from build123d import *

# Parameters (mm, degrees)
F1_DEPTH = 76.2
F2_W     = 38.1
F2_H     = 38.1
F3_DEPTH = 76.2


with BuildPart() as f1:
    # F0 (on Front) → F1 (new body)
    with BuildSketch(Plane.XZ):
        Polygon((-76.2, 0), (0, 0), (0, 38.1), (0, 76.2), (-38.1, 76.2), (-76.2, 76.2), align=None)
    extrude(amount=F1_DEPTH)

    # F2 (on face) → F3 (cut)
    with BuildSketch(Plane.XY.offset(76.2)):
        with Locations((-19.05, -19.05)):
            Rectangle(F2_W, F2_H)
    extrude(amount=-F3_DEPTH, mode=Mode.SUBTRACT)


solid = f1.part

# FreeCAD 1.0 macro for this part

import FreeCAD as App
import Part
import Sketcher

V = App.Vector
Q = App.Units.Quantity

doc = App.newDocument("Part")
body = doc.addObject("PartDesign::Body", "Body")

# Sketch on XZ plane
sketch1 = body.newObject("Sketcher::SketchObject", "Sketch")
sketch1.AttachmentSupport = (doc.getObject("XZ_Plane"), [""])
sketch1.MapMode = "FlatFace"
sketch1.addGeometry([
    Part.LineSegment(V(-76.2, 0, 0), V(0, 0, 0)),
    Part.LineSegment(V(0, 0, 0), V(0, 76.2, 0)),
    Part.LineSegment(V(0, 76.2, 0), V(-76.2, 76.2, 0)),
    Part.LineSegment(V(-76.2, 76.2, 0), V(-76.2, 0, 0)),
], False)
sketch1.addConstraint([
    Sketcher.Constraint("Coincident", 0, 2, 1, 1),
    Sketcher.Constraint("Coincident", 1, 2, 2, 1),
    Sketcher.Constraint("Coincident", 2, 2, 3, 1),
    Sketcher.Constraint("Coincident", 3, 2, 0, 1),
    Sketcher.Constraint("Horizontal", 0),
    Sketcher.Constraint("Vertical", 1),
    Sketcher.Constraint("Horizontal", 2),
    Sketcher.Constraint("Vertical", 3),
    Sketcher.Constraint("Coincident", 0, 2, -1, 1),
    Sketcher.Constraint("Equal", 2, 1),
    Sketcher.Constraint("DistanceX", 0, 1, 0, 2, Q("3 in")),
])
pad1 = body.newObject("PartDesign::Pad", "Pad")
pad1.Profile = sketch1
pad1.Length = Q("3 in")

# Sketch on XY plane
sketch2 = body.newObject("Sketcher::SketchObject", "Sketch001")
sketch2.AttachmentSupport = (doc.getObject("XY_Plane"), [""])
sketch2.MapMode = "FlatFace"
sketch2.AttachmentOffset = App.Placement(V(0, 0, 3 * 25.4), App.Rotation())
sketch2.addGeometry([
    Part.LineSegment(V(-38.1, 0, 0), V(-38.1, -38.1, 0)),
    Part.LineSegment(V(-38.1, -38.1, 0), V(0, -38.1, 0)),
    Part.LineSegment(V(0, -38.1, 0), V(0, 0, 0)),
    Part.LineSegment(V(0, 0, 0), V(-38.1, 0, 0)),
], False)
sketch2.addConstraint([
    Sketcher.Constraint("Coincident", 0, 2, 1, 1),
    Sketcher.Constraint("Coincident", 1, 2, 2, 1),
    Sketcher.Constraint("Coincident", 2, 2, 3, 1),
    Sketcher.Constraint("Coincident", 3, 2, 0, 1),
    Sketcher.Constraint("Vertical", 0),
    Sketcher.Constraint("Horizontal", 1),
    Sketcher.Constraint("Vertical", 2),
    Sketcher.Constraint("Horizontal", 3),
    Sketcher.Constraint("Coincident", 2, 2, -1, 1),
    Sketcher.Constraint("Equal", 3, 0),
    Sketcher.Constraint("DistanceX", 1, 1, 1, 2, Q("1.5 in")),
])
pocket1 = body.newObject("PartDesign::Pocket", "Pocket")
pocket1.Profile = sketch2
pocket1.Length = Q("3 in")

doc.recompute()
